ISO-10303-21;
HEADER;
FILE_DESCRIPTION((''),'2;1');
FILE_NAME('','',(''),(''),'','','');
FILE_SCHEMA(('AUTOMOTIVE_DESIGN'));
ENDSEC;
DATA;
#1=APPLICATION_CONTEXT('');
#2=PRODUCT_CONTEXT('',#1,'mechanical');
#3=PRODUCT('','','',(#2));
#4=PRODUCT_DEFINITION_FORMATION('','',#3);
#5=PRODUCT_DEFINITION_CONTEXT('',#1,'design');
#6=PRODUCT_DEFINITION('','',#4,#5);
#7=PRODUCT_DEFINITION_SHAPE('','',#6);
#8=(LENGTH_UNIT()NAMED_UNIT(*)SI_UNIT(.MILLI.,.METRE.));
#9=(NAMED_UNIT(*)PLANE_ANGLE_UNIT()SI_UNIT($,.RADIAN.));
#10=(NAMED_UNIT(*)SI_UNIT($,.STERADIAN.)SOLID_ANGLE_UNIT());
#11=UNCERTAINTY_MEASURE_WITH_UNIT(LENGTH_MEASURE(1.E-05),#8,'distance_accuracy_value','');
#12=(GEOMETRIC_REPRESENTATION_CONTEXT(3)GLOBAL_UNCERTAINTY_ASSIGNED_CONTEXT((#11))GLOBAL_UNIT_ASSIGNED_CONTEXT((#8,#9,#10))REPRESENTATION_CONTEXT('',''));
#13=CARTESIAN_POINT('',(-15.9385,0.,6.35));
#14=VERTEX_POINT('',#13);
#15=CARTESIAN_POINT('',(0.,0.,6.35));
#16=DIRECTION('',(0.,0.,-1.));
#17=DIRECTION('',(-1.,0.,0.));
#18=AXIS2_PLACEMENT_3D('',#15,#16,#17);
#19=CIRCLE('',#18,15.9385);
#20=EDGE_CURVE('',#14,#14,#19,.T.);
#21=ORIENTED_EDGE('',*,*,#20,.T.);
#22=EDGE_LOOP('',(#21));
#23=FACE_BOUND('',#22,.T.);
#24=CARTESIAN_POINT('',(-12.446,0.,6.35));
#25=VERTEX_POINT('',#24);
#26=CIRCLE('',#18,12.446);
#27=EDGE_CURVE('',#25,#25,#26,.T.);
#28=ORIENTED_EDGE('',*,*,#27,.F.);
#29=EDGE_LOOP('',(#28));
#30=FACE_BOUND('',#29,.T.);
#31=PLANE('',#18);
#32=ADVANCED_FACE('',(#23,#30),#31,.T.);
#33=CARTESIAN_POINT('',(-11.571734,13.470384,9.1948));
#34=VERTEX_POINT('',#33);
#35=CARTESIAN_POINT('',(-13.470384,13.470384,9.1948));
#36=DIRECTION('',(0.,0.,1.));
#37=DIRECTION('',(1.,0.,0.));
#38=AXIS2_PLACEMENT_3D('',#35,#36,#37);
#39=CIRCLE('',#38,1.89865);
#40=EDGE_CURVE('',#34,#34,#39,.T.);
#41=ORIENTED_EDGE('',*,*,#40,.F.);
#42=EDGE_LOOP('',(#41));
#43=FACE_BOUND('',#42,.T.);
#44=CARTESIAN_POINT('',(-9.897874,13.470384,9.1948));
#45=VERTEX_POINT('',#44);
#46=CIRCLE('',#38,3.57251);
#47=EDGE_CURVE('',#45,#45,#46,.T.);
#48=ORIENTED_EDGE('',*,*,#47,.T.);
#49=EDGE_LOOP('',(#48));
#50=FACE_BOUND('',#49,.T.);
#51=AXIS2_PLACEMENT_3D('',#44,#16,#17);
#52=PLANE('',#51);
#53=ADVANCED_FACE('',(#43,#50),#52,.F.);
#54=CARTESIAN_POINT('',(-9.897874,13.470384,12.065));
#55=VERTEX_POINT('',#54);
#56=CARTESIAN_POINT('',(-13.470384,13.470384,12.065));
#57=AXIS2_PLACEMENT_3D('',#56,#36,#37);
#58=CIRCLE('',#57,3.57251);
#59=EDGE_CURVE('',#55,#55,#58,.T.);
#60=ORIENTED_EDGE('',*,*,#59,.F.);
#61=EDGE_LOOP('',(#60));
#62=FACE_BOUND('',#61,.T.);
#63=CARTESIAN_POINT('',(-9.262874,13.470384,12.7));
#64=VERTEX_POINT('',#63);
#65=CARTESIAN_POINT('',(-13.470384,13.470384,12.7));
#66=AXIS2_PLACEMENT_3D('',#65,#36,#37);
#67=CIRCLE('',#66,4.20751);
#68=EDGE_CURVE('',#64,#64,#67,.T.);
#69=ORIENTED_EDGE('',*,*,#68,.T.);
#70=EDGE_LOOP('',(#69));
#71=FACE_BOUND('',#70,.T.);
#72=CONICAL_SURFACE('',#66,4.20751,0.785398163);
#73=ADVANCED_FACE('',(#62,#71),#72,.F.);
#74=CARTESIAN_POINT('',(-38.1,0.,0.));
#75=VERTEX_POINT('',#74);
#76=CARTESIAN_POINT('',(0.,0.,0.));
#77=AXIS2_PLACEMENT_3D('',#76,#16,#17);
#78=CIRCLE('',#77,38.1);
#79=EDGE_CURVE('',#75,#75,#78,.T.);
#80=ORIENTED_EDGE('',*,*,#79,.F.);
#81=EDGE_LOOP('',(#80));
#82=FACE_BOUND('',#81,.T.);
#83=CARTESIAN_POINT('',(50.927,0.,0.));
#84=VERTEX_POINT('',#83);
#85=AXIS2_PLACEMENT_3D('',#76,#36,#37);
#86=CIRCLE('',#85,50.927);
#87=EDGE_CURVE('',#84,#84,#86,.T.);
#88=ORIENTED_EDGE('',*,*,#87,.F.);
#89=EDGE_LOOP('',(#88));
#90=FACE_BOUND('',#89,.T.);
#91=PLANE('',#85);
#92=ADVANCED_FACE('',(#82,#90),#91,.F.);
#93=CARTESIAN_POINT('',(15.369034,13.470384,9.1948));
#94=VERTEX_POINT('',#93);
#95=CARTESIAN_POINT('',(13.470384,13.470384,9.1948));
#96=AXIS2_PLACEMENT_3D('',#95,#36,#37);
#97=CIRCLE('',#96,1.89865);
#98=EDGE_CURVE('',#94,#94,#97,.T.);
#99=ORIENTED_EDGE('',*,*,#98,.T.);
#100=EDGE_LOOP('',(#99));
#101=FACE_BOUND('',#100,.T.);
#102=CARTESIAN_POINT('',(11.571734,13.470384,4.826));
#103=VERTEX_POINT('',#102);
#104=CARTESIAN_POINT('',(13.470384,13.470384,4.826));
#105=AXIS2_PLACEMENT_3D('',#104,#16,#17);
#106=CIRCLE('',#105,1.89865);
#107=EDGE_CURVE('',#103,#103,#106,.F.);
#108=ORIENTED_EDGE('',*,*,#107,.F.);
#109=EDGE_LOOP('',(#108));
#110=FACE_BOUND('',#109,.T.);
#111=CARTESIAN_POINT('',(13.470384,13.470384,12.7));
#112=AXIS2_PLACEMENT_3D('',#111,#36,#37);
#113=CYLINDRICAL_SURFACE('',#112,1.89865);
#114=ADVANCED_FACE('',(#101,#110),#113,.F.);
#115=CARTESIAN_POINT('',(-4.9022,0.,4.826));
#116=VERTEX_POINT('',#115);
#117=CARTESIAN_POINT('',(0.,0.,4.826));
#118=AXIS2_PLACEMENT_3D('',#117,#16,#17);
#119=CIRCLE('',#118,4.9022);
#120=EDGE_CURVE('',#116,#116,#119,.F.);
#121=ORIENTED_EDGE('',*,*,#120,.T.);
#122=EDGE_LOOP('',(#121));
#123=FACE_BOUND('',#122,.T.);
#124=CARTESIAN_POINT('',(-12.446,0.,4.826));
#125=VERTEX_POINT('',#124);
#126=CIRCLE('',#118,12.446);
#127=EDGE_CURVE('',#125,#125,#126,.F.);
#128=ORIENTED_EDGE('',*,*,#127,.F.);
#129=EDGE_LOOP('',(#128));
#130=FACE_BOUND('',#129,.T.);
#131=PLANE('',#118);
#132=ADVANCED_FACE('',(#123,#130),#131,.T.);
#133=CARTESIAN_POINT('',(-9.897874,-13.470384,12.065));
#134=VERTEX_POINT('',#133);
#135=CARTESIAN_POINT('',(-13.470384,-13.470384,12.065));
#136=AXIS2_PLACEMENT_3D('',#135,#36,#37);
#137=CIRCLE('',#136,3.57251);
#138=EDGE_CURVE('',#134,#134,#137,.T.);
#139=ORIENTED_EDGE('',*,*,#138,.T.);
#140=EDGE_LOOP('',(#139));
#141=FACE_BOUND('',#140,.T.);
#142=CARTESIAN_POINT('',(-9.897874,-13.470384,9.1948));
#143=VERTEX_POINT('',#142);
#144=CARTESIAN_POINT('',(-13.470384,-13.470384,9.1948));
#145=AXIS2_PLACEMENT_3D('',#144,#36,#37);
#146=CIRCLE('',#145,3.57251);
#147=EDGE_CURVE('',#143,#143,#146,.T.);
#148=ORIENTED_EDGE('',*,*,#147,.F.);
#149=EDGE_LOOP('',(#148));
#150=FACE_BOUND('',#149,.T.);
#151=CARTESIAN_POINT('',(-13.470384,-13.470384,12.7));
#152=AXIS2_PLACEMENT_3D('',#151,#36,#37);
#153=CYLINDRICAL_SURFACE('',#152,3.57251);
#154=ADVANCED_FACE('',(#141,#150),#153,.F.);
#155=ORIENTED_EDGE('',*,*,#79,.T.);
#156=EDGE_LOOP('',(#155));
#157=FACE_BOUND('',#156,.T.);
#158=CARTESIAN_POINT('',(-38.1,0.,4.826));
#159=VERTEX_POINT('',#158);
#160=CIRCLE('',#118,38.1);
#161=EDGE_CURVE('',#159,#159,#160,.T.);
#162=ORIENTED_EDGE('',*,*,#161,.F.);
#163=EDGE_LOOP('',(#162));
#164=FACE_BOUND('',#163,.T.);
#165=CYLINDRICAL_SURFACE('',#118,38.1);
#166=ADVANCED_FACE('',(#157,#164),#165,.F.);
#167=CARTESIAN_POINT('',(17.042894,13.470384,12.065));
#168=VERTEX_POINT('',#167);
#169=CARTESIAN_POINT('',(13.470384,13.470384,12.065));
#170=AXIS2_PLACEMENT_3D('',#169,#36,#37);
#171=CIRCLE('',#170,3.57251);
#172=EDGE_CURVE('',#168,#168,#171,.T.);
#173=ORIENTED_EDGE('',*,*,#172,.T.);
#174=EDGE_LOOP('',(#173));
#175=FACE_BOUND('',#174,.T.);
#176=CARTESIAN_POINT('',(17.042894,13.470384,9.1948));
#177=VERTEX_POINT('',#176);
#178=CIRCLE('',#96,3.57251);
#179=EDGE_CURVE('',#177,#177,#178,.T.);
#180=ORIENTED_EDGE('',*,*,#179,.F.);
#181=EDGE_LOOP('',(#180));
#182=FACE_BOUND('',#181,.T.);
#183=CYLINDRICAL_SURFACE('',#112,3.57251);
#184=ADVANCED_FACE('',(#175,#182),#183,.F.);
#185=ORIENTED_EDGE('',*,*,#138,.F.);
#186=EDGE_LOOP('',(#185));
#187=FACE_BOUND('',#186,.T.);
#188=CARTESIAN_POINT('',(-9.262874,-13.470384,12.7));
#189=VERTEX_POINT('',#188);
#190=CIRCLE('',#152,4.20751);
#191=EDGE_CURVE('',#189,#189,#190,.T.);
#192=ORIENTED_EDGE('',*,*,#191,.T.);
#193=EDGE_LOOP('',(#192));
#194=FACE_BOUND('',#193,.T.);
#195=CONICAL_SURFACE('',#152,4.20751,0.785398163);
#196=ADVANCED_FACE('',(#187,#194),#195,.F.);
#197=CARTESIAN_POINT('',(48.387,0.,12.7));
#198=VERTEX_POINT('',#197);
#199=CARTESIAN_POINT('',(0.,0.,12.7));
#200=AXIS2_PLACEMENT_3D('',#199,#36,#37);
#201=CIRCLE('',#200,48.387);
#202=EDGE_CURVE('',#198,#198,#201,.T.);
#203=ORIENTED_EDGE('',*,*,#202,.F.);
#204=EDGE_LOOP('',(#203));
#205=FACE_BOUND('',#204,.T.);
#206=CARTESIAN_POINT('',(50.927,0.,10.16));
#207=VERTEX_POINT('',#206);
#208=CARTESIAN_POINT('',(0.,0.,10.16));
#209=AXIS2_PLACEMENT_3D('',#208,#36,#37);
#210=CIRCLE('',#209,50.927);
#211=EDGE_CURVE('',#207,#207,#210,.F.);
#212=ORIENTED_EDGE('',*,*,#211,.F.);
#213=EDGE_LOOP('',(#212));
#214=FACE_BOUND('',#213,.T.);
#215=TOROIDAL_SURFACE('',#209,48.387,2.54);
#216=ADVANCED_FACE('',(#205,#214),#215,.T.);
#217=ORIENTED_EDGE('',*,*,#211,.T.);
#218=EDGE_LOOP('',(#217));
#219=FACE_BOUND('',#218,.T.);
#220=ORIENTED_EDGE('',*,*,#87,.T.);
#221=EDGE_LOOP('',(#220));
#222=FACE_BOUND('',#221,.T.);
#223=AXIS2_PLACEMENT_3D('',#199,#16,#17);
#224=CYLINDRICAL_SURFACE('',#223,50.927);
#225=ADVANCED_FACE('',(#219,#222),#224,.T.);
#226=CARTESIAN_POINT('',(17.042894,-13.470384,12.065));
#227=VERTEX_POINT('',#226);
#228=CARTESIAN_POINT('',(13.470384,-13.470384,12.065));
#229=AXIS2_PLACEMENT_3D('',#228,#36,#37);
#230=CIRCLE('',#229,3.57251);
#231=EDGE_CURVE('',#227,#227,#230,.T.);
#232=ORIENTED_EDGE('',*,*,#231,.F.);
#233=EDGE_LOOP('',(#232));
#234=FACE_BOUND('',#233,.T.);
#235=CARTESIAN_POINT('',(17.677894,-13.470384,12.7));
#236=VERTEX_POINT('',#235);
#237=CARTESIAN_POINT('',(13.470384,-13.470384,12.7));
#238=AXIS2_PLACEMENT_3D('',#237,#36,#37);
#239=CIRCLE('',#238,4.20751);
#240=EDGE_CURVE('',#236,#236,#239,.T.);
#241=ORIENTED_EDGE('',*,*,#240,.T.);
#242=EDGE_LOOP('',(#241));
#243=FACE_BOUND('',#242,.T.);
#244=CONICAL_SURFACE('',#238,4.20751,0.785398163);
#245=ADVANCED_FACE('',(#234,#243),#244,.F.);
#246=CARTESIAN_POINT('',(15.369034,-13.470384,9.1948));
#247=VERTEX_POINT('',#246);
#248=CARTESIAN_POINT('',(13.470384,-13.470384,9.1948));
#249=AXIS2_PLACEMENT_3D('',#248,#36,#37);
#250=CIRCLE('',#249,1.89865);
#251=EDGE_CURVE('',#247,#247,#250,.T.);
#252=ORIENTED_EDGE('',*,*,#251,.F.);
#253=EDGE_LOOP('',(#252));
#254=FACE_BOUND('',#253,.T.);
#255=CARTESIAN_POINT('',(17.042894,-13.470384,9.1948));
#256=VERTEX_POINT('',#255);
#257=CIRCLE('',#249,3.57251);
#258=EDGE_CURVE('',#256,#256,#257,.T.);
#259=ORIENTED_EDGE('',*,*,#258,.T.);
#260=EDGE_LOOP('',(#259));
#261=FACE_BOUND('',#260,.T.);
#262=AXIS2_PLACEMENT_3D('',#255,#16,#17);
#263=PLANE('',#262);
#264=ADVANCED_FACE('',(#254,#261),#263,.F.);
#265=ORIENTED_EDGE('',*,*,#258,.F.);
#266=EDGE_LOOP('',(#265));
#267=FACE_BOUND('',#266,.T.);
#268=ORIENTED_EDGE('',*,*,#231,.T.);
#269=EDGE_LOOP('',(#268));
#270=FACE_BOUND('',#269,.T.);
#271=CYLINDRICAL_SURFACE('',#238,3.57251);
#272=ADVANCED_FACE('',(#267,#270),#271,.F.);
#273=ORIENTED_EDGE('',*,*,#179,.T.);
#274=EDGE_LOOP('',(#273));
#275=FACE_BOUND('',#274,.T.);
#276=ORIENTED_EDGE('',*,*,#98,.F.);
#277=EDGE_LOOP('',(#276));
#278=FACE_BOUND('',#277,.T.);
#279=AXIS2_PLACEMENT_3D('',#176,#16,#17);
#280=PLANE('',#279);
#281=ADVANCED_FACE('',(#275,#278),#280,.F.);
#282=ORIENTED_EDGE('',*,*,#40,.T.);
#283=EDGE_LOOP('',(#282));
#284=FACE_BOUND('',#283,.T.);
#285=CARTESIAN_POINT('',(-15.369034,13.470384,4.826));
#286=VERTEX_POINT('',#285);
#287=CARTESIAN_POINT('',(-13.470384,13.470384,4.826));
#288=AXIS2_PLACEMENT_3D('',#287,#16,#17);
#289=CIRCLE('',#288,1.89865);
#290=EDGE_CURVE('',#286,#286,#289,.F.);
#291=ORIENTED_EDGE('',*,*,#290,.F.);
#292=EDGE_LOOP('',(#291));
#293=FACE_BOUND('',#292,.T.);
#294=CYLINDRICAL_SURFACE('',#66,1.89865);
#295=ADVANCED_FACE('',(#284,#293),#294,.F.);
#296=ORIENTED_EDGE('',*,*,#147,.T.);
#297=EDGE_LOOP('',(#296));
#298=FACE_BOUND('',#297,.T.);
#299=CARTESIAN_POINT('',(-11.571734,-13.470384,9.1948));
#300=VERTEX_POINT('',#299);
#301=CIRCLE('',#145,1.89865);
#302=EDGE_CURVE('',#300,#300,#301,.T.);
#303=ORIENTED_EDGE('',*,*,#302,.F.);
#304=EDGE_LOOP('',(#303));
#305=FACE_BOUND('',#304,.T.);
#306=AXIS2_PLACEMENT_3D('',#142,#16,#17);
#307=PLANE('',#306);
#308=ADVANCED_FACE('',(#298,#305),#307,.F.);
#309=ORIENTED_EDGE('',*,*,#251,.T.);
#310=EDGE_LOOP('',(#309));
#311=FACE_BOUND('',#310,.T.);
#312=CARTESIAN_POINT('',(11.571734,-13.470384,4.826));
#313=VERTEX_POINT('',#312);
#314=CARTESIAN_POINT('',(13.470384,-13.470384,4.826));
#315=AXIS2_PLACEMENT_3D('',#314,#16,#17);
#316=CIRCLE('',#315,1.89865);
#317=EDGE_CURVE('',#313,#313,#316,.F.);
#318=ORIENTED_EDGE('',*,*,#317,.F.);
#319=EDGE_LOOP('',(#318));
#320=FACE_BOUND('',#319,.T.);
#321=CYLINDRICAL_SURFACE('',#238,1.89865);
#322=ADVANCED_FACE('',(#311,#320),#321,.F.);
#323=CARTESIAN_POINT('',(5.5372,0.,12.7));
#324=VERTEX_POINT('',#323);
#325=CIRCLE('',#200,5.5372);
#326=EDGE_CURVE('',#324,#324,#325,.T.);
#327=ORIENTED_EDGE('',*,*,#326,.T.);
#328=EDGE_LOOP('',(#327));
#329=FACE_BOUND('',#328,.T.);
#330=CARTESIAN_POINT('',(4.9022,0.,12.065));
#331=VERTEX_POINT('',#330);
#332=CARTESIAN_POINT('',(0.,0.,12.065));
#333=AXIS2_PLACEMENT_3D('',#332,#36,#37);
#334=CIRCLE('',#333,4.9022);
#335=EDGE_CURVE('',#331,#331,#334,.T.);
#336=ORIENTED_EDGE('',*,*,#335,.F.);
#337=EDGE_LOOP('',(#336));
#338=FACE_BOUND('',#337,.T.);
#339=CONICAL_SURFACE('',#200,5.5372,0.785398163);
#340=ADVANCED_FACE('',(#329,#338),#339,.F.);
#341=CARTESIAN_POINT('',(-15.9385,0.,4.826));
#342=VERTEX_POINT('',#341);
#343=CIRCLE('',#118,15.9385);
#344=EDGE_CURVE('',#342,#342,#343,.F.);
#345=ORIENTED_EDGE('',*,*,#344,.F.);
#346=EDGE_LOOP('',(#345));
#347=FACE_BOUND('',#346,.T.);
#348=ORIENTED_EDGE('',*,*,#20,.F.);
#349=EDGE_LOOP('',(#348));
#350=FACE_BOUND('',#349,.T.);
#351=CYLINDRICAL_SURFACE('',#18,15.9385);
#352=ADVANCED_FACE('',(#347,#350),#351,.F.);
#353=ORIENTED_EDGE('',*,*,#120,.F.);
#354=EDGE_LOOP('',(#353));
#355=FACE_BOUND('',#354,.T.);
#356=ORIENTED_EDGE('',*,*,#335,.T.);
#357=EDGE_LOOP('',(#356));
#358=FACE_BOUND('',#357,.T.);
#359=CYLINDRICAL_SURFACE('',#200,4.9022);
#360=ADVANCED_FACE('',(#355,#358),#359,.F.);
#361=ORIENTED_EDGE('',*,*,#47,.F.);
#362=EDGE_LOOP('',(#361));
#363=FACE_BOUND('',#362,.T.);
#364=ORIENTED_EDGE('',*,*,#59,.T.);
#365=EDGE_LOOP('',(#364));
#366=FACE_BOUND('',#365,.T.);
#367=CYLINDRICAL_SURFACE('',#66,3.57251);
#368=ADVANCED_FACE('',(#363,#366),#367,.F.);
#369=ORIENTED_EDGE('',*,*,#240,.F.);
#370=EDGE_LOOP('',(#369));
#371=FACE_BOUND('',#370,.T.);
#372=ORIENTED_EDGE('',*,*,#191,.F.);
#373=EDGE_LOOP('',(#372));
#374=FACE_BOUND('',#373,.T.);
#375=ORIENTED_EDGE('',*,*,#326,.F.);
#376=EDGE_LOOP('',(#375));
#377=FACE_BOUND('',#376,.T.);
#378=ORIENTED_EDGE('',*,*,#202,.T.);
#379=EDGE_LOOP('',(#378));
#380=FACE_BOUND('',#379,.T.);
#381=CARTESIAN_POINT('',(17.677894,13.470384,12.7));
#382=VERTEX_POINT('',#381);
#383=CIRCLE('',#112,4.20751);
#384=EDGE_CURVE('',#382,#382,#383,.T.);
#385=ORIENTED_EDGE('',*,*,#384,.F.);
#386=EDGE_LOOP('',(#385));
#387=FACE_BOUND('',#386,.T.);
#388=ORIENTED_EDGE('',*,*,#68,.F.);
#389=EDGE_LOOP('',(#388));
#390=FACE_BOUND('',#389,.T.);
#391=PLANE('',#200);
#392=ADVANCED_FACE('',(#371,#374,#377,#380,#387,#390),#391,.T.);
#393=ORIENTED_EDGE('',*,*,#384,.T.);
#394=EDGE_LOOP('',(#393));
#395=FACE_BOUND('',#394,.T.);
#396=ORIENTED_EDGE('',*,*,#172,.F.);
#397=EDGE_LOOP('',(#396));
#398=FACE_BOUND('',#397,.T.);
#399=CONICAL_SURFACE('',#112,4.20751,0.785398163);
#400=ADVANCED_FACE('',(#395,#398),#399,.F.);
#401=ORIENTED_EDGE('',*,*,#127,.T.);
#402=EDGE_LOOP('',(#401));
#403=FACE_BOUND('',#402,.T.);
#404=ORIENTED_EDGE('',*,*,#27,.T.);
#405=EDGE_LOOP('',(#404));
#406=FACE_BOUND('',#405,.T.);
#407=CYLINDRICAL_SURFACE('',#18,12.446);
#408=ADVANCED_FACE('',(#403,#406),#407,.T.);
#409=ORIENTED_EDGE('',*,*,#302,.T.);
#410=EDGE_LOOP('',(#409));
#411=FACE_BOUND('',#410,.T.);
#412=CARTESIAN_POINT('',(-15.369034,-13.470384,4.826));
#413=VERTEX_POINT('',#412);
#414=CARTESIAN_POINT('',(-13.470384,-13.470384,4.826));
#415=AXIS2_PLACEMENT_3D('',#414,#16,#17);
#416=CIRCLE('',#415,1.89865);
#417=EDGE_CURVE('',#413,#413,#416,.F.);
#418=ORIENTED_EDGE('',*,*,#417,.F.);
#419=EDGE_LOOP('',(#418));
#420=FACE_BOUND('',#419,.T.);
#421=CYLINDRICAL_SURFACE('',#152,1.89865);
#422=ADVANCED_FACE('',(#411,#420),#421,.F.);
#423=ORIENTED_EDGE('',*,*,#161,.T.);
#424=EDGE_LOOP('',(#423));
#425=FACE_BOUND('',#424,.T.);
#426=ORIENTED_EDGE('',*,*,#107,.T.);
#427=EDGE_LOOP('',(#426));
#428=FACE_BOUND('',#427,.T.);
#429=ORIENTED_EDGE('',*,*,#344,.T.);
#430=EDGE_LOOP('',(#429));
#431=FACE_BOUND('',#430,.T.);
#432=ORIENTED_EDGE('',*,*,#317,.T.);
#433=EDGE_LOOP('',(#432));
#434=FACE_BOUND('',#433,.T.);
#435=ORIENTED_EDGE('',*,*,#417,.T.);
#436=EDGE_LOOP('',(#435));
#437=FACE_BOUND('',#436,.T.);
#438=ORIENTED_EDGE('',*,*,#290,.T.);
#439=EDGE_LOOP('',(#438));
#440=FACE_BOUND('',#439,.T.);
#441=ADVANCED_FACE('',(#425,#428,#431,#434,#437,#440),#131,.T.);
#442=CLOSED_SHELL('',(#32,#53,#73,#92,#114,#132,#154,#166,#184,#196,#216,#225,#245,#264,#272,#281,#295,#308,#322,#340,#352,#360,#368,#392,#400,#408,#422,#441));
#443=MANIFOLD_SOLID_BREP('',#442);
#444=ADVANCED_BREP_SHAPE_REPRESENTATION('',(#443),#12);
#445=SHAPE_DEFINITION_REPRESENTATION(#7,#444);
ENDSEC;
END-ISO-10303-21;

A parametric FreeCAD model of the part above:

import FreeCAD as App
import Part
import Sketcher
Q = App.Units.Quantity


def edges_at(feature, points):
    """Names of the edges that pass closest to the given points."""
    edges = feature.Shape.Edges
    near = lambda p: min(range(len(edges)), key=lambda i: edges[i].distToShape(Part.Vertex(*p))[0])
    return sorted({f"Edge{near(p) + 1}" for p in points})

doc = App.newDocument("Part")
body = doc.addObject("PartDesign::Body", "Body")

sketch1 = body.newObject("Sketcher::SketchObject", "Sketch")
sketch1.AttachmentSupport = (doc.getObject("XY_Plane"), [""])
sketch1.MapMode = "FlatFace"
sketch1.addGeometry(Part.Circle(App.Vector(0, 0, 0), App.Vector(0, 0, 1), 51), False)
sketch1.addConstraint([
    Sketcher.Constraint("Coincident", 0, 3, -1, 1),
    Sketcher.Constraint("Diameter", 0, Q("4.01 in")),
])
pad1 = body.newObject("PartDesign::Pad", "Pad")
pad1.Profile = sketch1
pad1.Length = Q("0.5 in")

sketch2 = body.newObject("Sketcher::SketchObject", "Sketch001")
sketch2.AttachmentSupport = (doc.getObject("XY_Plane"), [""])
sketch2.MapMode = "FlatFace"
sketch2.AttachmentOffset = App.Placement(App.Vector(0, 0, 0.5 * 25.4), App.Rotation())
sketch2.addGeometry(Part.Circle(App.Vector(0, 0, 0), App.Vector(0, 0, 1), 4.9), False)
sketch2.addConstraint([
    Sketcher.Constraint("Coincident", 0, 3, -1, 1),
    Sketcher.Constraint("Diameter", 0, Q("0.386 in")),
])
doc.recompute()
hole = body.newObject("PartDesign::Hole", "Hole")
hole.Profile = sketch2
hole.ThreadType = "None"
hole.Diameter = Q("0.386 in")
hole.DepthType = "ThroughAll"
hole.HoleCutType = "Countersink"
hole.HoleCutDiameter = Q("0.436 in")
hole.HoleCutCountersinkAngle = 90

sketch3 = body.newObject("Sketcher::SketchObject", "Sketch002")
sketch3.AttachmentSupport = (doc.getObject("YZ_Plane"), [""])
sketch3.MapMode = "FlatFace"
sketch3.AttachmentOffset = App.Placement(App.Vector(0, 0, 13.470384), App.Rotation())
sketch3.addGeometry([
    Part.LineSegment(App.Vector(13.5, 0, 0), App.Vector(13.5, 12.7, 0)),
    Part.LineSegment(App.Vector(13.5, 12.7, 0), App.Vector(9.3, 12.7, 0)),
    Part.LineSegment(App.Vector(9.3, 12.7, 0), App.Vector(9.9, 12.1, 0)),
    Part.LineSegment(App.Vector(9.9, 12.1, 0), App.Vector(9.9, 9.2, 0)),
    Part.LineSegment(App.Vector(9.9, 9.2, 0), App.Vector(11.6, 9.2, 0)),
    Part.LineSegment(App.Vector(11.6, 9.2, 0), App.Vector(11.6, 0, 0)),
    Part.LineSegment(App.Vector(11.6, 0, 0), App.Vector(13.5, 0, 0)),
], False)
sketch3.addGeometry(Part.LineSegment(App.Vector(13.5, 12.7, 0), App.Vector(13.5, 0, 0)), True)
sketch3.addConstraint([
    Sketcher.Constraint("Coincident", 0, 2, 1, 1),
    Sketcher.Constraint("Coincident", 1, 2, 2, 1),
    Sketcher.Constraint("Coincident", 2, 2, 3, 1),
    Sketcher.Constraint("Coincident", 3, 2, 4, 1),
    Sketcher.Constraint("Coincident", 4, 2, 5, 1),
    Sketcher.Constraint("Coincident", 5, 2, 6, 1),
    Sketcher.Constraint("Coincident", 6, 2, 0, 1),
    Sketcher.Constraint("Vertical", 0),
    Sketcher.Constraint("Horizontal", 1),
    Sketcher.Constraint("Vertical", 3),
    Sketcher.Constraint("Horizontal", 4),
    Sketcher.Constraint("Vertical", 5),
    Sketcher.Constraint("Horizontal", 6),
    Sketcher.Constraint("Vertical", 7),
    Sketcher.Constraint("Coincident", 7, 1, 0, 2),
    Sketcher.Constraint("PointOnObject", 5, 2, -1),
    Sketcher.Constraint("PointOnObject", 7, 2, -1),
    Sketcher.Constraint("DistanceY", 0, 1, 0, 2, Q("0.5 in")),
    Sketcher.Constraint("Angle", 2, Q("-45 deg")),
    Sketcher.Constraint("DistanceY", 3, 2, 3, 1, Q("0.113 in")),
    Sketcher.Constraint("DistanceY", 5, 2, 5, 1, Q("0.362 in")),
    Sketcher.Constraint("DistanceX", 4, 1, 4, 2, Q("0.0659 in")),
    Sketcher.Constraint("DistanceX", 1, 2, 1, 1, Q("4.20751 mm")),
    Sketcher.Constraint("DistanceX", -1, 1, 0, 2, Q("13.470384 mm")),
])
groove = body.newObject("PartDesign::Groove", "Groove")
groove.Profile = sketch3
groove.ReferenceAxis = (sketch3, ["Axis0"])
groove.Angle = 360
doc.recompute()

datumline = body.newObject("PartDesign::Line", "DatumLine")
datumline.Placement = App.Placement(App.Vector(0, 0, 0), App.Rotation(App.Vector(0, 0, 1), App.Vector(-0.707106781, -0.707106781, 0)))
linearpattern = body.newObject("PartDesign::LinearPattern", "LinearPattern")
linearpattern.Originals = [groove]
linearpattern.Direction = (datumline, [""])
linearpattern.Mode = "offset"
linearpattern.Offset = Q("1.5 in")
linearpattern.Occurrences = 2
body.Tip = linearpattern
doc.recompute()

linearpattern2 = body.newObject("PartDesign::LinearPattern", "LinearPattern001")
linearpattern2.Originals = [groove]
linearpattern2.Direction = (doc.getObject("X_Axis"), [""])
linearpattern2.Mode = "offset"
linearpattern2.Offset = 26.940768
linearpattern2.Occurrences = 2
linearpattern2.Reversed = True
body.Tip = linearpattern2
doc.recompute()

linearpattern3 = body.newObject("PartDesign::LinearPattern", "LinearPattern002")
linearpattern3.Originals = [groove]
linearpattern3.Direction = (doc.getObject("Y_Axis"), [""])
linearpattern3.Mode = "offset"
linearpattern3.Offset = 26.940768
linearpattern3.Occurrences = 2
linearpattern3.Reversed = True
body.Tip = linearpattern3
doc.recompute()

fillet = body.newObject("PartDesign::Fillet", "Fillet")
fillet.Base = (linearpattern3, edges_at(linearpattern3, [(-50.927, 0, 12.7)]))
fillet.Radius = Q("0.1 in")

sketch4 = body.newObject("Sketcher::SketchObject", "Sketch003")
sketch4.AttachmentSupport = (doc.getObject("XY_Plane"), [""])
sketch4.MapMode = "FlatFace"
sketch4.addGeometry([
    Part.Circle(App.Vector(0, 0, 0), App.Vector(0, 0, 1), 16),
    Part.Circle(App.Vector(0, 0, 0), App.Vector(0, 0, 1), 12),
], False)
sketch4.addConstraint([
    Sketcher.Constraint("Coincident", 0, 3, -1, 1),
    Sketcher.Constraint("Coincident", 1, 3, -1, 1),
    Sketcher.Constraint("Diameter", 1, Q("0.98 in")),
    Sketcher.Constraint("Diameter", 0, Q("1.255 in")),
])
pocket1 = body.newObject("PartDesign::Pocket", "Pocket")
pocket1.Profile = sketch4
pocket1.Length = Q("0.25 in")
pocket1.Reversed = True

sketch5 = body.newObject("Sketcher::SketchObject", "Sketch004")
sketch5.AttachmentSupport = (doc.getObject("XY_Plane"), [""])
sketch5.MapMode = "FlatFace"
sketch5.addGeometry(Part.Circle(App.Vector(0, 0, 0), App.Vector(0, 0, 1), 38), False)
sketch5.addConstraint([
    Sketcher.Constraint("Coincident", 0, 3, -1, 1),
    Sketcher.Constraint("Diameter", 0, Q("3 in")),
])
pocket2 = body.newObject("PartDesign::Pocket", "Pocket001")
pocket2.Profile = sketch5
pocket2.Length = Q("0.19 in")
pocket2.Reversed = True

doc.recompute()
